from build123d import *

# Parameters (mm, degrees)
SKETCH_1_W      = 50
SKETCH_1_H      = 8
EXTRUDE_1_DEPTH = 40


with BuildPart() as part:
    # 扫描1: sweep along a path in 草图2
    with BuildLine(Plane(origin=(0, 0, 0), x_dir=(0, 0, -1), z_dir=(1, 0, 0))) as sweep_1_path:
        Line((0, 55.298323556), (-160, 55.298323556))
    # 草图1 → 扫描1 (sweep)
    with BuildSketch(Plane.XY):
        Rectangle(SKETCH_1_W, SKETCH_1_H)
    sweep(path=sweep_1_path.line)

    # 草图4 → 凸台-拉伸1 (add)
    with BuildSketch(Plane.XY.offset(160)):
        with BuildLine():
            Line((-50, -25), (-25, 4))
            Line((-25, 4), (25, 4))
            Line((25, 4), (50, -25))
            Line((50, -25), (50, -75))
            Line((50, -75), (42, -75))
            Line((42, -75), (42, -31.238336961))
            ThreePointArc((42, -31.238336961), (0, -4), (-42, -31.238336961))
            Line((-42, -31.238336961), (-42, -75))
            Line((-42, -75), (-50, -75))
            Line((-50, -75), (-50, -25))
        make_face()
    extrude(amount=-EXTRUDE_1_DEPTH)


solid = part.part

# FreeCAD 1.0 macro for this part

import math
import FreeCAD as App
import Part
import Sketcher

V = App.Vector


def add_polygon(sketch, points):
    """Adds a closed chain of lines whose ends are joined by coincident constraints."""
    first, n = sketch.GeometryCount, len(points)
    for a, b in zip(points, points[1:] + points[:1]):
        sketch.addGeometry(Part.LineSegment(App.Vector(*a, 0), App.Vector(*b, 0)), False)
    for i in range(n):
        sketch.addConstraint(Sketcher.Constraint("Coincident", first + i, 2, first + (i + 1) % n, 1))

doc = App.newDocument("Part")
body = doc.addObject("PartDesign::Body", "Body")

# Sketch on XY plane
sketch1 = body.newObject("Sketcher::SketchObject", "Sketch")
sketch1.AttachmentSupport = (doc.getObject("XY_Plane"), [""])
sketch1.MapMode = "FlatFace"
add_polygon(sketch1, [(-25, 4), (-25, -4), (25, -4), (25, 4)])  # lines 0-3
sketch1.addConstraint([
    Sketcher.Constraint("Vertical", 0),
    Sketcher.Constraint("Horizontal", 1),
    Sketcher.Constraint("Vertical", 2),
    Sketcher.Constraint("Horizontal", 3),
    Sketcher.Constraint("Symmetric", 0, 2, 2, 2, -1, 1),
    Sketcher.Constraint("DistanceX", 1, 1, 1, 2, 50.0),
    Sketcher.Constraint("DistanceY", 0, 2, 0, 1, 8.0),
])

# Sketch on XZ plane
sketch2 = body.newObject("Sketcher::SketchObject", "Sketch001")
sketch2.AttachmentSupport = (doc.getObject("XZ_Plane"), [""])
sketch2.MapMode = "FlatFace"
sketch2.AttachmentOffset = App.Placement(V(0, 0, -55.298324), App.Rotation())
sketch2.addGeometry(Part.LineSegment(V(0, 0, 0), V(0, 160, 0)), False)
sketch2.addConstraint([
    Sketcher.Constraint("Vertical", 0),
    Sketcher.Constraint("Coincident", 0, 1, -1, 1),
    Sketcher.Constraint("DistanceY", 0, 1, 0, 2, 160.0),
])
doc.recompute()

additivepipe = body.newObject("PartDesign::AdditivePipe", "AdditivePipe")
additivepipe.Profile = sketch1
additivepipe.Spine = (sketch2, ["Edge1"])

# Sketch on XY plane
sketch3 = body.newObject("Sketcher::SketchObject", "Sketch002")
sketch3.AttachmentSupport = (doc.getObject("XY_Plane"), [""])
sketch3.MapMode = "FlatFace"
sketch3.AttachmentOffset = App.Placement(V(0, 0, 160), App.Rotation())
sketch3.addGeometry([
    Part.LineSegment(V(-25, 4, 0), V(-50, -25, 0)),  # 0
    Part.LineSegment(V(-50, -25, 0), V(-50, -75, 0)),  # 1
    Part.LineSegment(V(-50, -75, 0), V(-42, -75, 0)),  # 2
    Part.LineSegment(V(-42, -75, 0), V(-42, -31, 0)),  # 3
    Part.ArcOfCircle(Part.Circle(V(0, -50, 0), V(0, 0, 1), 46), math.radians(24), math.radians(156)),  # 4
    Part.LineSegment(V(42, -31, 0), V(42, -75, 0)),  # 5
    Part.LineSegment(V(42, -75, 0), V(50, -75, 0)),  # 6
    Part.LineSegment(V(50, -75, 0), V(50, -25, 0)),  # 7
    Part.LineSegment(V(50, -25, 0), V(25, 4, 0)),  # 8
    Part.LineSegment(V(25, 4, 0), V(-25, 4, 0)),  # 9
], False)
sketch3.addConstraint([
    Sketcher.Constraint("Coincident", 0, 2, 1, 1),
    Sketcher.Constraint("Coincident", 1, 2, 2, 1),
    Sketcher.Constraint("Coincident", 2, 2, 3, 1),
    Sketcher.Constraint("Coincident", 3, 2, 4, 2),
    Sketcher.Constraint("Coincident", 4, 1, 5, 1),
    Sketcher.Constraint("Coincident", 5, 2, 6, 1),
    Sketcher.Constraint("Coincident", 6, 2, 7, 1),
    Sketcher.Constraint("Coincident", 7, 2, 8, 1),
    Sketcher.Constraint("Coincident", 8, 2, 9, 1),
    Sketcher.Constraint("Coincident", 9, 2, 0, 1),
    Sketcher.Constraint("Vertical", 1),
    Sketcher.Constraint("Horizontal", 2),
    Sketcher.Constraint("Vertical", 3),
    Sketcher.Constraint("Vertical", 5),
    Sketcher.Constraint("Horizontal", 6),
    Sketcher.Constraint("Vertical", 7),
    Sketcher.Constraint("Horizontal", 9),
    Sketcher.Constraint("Symmetric", 3, 2, 4, 1, -2),
    Sketcher.Constraint("Symmetric", 1, 2, 6, 2, -2),
    Sketcher.Constraint("Horizontal", 0, 2, 7, 2),
    Sketcher.Constraint("Equal", 9, 1),
    Sketcher.Constraint("Equal", 0, 8),
    Sketcher.Constraint("Radius", 4, 46.0),
    Sketcher.Constraint("DistanceX", 2, 1, 2, 2, 8.0),
    Sketcher.Constraint("DistanceX", 9, 2, 9, 1, 50.0),
    Sketcher.Constraint("DistanceY", 4, 3, -1, 1, 50.0),
    Sketcher.Constraint("DistanceX", 0, 2, -1, 1, 50.0),
    Sketcher.Constraint("DistanceY", 0, 2, -1, 1, 25.0),
    Sketcher.Constraint("DistanceY", -1, 1, 8, 2, 4.0),
])
pad1 = body.newObject("PartDesign::Pad", "Pad")
pad1.Profile = sketch3
pad1.Length = 40
pad1.Reversed = True

doc.recompute()
